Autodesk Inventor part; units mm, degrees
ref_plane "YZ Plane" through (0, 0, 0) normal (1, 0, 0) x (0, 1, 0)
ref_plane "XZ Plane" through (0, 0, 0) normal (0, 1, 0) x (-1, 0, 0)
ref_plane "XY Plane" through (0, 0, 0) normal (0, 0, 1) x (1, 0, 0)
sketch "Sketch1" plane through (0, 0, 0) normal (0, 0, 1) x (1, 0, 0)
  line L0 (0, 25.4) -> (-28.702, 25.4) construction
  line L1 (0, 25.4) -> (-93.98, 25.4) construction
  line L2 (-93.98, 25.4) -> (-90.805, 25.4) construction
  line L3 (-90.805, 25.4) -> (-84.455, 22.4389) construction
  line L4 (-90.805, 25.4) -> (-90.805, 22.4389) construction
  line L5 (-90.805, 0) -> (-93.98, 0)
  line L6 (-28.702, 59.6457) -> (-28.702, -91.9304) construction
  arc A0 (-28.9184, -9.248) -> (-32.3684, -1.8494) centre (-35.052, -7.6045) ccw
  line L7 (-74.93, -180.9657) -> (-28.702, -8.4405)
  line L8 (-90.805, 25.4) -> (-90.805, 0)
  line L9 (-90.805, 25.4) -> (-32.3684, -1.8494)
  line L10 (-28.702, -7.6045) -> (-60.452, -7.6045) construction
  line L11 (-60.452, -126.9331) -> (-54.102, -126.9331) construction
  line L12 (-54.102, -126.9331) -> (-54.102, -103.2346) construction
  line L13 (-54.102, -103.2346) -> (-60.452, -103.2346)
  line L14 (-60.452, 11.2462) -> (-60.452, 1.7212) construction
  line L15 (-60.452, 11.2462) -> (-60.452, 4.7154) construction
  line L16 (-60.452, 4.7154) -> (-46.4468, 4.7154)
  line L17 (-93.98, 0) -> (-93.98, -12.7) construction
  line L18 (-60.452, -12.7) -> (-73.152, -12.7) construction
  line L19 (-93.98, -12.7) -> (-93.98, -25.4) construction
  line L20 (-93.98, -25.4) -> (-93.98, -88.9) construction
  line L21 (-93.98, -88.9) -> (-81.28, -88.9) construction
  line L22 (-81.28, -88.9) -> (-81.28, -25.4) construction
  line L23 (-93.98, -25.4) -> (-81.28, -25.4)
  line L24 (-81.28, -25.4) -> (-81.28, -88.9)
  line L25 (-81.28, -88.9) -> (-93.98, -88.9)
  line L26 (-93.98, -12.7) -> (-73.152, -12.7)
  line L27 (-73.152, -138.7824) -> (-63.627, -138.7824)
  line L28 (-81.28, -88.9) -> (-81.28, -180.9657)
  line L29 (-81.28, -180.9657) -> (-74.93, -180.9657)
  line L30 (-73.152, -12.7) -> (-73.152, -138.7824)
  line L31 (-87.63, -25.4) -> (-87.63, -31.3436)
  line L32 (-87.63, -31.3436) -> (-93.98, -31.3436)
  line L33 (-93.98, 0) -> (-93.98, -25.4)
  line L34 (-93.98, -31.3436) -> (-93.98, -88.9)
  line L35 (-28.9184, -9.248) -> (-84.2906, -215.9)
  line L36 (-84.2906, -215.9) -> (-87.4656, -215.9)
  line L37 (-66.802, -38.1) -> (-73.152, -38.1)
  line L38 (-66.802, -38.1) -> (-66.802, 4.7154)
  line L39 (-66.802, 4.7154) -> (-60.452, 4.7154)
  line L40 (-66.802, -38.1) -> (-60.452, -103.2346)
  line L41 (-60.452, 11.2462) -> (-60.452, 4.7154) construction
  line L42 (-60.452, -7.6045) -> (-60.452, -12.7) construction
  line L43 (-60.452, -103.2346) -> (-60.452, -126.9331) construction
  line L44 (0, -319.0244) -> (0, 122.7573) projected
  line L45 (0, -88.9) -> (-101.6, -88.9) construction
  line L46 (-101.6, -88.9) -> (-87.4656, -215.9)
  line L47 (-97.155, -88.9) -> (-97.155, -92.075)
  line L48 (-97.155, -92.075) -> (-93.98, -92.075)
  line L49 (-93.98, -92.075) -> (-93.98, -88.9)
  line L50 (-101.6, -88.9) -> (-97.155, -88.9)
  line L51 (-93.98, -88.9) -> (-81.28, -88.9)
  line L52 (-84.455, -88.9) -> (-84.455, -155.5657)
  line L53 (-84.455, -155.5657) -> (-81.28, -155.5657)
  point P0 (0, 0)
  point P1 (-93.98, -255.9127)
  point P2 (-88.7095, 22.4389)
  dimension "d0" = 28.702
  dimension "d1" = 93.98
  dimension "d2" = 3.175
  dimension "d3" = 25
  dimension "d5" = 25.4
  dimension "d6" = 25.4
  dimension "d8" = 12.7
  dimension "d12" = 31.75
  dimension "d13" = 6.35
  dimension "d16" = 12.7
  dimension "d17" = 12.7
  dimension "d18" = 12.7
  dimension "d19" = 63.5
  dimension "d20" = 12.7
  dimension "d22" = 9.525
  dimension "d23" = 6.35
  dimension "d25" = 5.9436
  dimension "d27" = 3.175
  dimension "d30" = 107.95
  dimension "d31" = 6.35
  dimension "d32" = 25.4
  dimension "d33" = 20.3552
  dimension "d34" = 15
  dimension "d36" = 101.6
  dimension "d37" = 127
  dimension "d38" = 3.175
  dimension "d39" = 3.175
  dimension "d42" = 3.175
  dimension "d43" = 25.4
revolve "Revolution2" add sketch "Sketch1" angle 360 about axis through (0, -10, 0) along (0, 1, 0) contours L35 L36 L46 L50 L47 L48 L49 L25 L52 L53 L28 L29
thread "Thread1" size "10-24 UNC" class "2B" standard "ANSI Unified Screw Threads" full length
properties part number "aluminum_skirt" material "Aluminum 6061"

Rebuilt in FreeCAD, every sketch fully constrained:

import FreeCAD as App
import Part
import Sketcher
Q = App.Units.Quantity

doc = App.newDocument("Part")
body = doc.addObject("PartDesign::Body", "Body")

# Sketch on XY plane
sketch1 = doc.addObject("Sketcher::SketchObject", "Sketch")
body.addObject(sketch1)
sketch1.AttachmentSupport = (doc.XY_Plane, [""])
sketch1.MapMode = "FlatFace"
sketch1.addGeometry([
    Part.LineSegment(App.Vector(-84.3, -215.9, 0), App.Vector(-74.9, -181, 0)),  # 0
    Part.LineSegment(App.Vector(-74.9, -181, 0), App.Vector(-81.3, -181, 0)),  # 1
    Part.LineSegment(App.Vector(-81.3, -181, 0), App.Vector(-81.3, -155.6, 0)),  # 2
    Part.LineSegment(App.Vector(-81.3, -155.6, 0), App.Vector(-84.5, -155.6, 0)),  # 3
    Part.LineSegment(App.Vector(-84.5, -155.6, 0), App.Vector(-84.5, -88.9, 0)),  # 4
    Part.LineSegment(App.Vector(-84.5, -88.9, 0), App.Vector(-94, -88.9, 0)),  # 5
    Part.LineSegment(App.Vector(-94, -88.9, 0), App.Vector(-94, -92.1, 0)),  # 6
    Part.LineSegment(App.Vector(-94, -92.1, 0), App.Vector(-97.2, -92.1, 0)),  # 7
    Part.LineSegment(App.Vector(-97.2, -92.1, 0), App.Vector(-97.2, -88.9, 0)),  # 8
    Part.LineSegment(App.Vector(-97.2, -88.9, 0), App.Vector(-101.6, -88.9, 0)),  # 9
    Part.LineSegment(App.Vector(-101.6, -88.9, 0), App.Vector(-87.5, -215.9, 0)),  # 10
    Part.LineSegment(App.Vector(-87.5, -215.9, 0), App.Vector(-84.3, -215.9, 0)),  # 11
], False)
sketch1.addConstraint([
    Sketcher.Constraint("Coincident", 0, 2, 1, 1),
    Sketcher.Constraint("Coincident", 1, 2, 2, 1),
    Sketcher.Constraint("Coincident", 2, 2, 3, 1),
    Sketcher.Constraint("Coincident", 3, 2, 4, 1),
    Sketcher.Constraint("Coincident", 4, 2, 5, 1),
    Sketcher.Constraint("Coincident", 5, 2, 6, 1),
    Sketcher.Constraint("Coincident", 6, 2, 7, 1),
    Sketcher.Constraint("Coincident", 7, 2, 8, 1),
    Sketcher.Constraint("Coincident", 8, 2, 9, 1),
    Sketcher.Constraint("Coincident", 9, 2, 10, 1),
    Sketcher.Constraint("Coincident", 10, 2, 11, 1),
    Sketcher.Constraint("Coincident", 11, 2, 0, 1),
    Sketcher.Constraint("Horizontal", 1),
    Sketcher.Constraint("Vertical", 2),
    Sketcher.Constraint("Horizontal", 3),
    Sketcher.Constraint("Vertical", 4),
    Sketcher.Constraint("Horizontal", 5),
    Sketcher.Constraint("Vertical", 6),
    Sketcher.Constraint("Horizontal", 7),
    Sketcher.Constraint("Vertical", 8),
    Sketcher.Constraint("Horizontal", 9),
    Sketcher.Constraint("Horizontal", 11),
    Sketcher.Constraint("Horizontal", 5, 2, 8, 2),
    Sketcher.Constraint("Equal", 3, 7),
    Sketcher.Constraint("Equal", 7, 11),
    Sketcher.Constraint("Equal", 11, 6),
    Sketcher.Constraint("DistanceY", 2, 1, 2, 2, Q("1 in")),
    Sketcher.Constraint("DistanceX", 9, 2, -1, 1, Q("4 in")),
    Sketcher.Constraint("DistanceX", 1, 2, 1, 1, Q("0.25 in")),
    Sketcher.Constraint("DistanceX", 5, 2, -1, 1, Q("3.7 in")),
    Sketcher.Constraint("DistanceX", 5, 2, 2, 2, Q("0.5 in")),
    Sketcher.Constraint("DistanceX", 3, 2, 3, 1, Q("0.125 in")),
    Sketcher.Constraint("Angle", 0, Q("75 deg")),
    Sketcher.Constraint("DistanceY", 4, 2, -1, 1, Q("3.5 in")),
    Sketcher.Constraint("DistanceY", 10, 2, -1, 1, Q("8.5 in")),
    Sketcher.Constraint("Angle", 10, Q("-83.6494 deg")),
])
revolution = doc.addObject("PartDesign::Revolution", "Revolution")
body.addObject(revolution)
revolution.Profile = sketch1
revolution.ReferenceAxis = (sketch1, ["V_Axis"])
revolution.Angle = 360

doc.recompute()
